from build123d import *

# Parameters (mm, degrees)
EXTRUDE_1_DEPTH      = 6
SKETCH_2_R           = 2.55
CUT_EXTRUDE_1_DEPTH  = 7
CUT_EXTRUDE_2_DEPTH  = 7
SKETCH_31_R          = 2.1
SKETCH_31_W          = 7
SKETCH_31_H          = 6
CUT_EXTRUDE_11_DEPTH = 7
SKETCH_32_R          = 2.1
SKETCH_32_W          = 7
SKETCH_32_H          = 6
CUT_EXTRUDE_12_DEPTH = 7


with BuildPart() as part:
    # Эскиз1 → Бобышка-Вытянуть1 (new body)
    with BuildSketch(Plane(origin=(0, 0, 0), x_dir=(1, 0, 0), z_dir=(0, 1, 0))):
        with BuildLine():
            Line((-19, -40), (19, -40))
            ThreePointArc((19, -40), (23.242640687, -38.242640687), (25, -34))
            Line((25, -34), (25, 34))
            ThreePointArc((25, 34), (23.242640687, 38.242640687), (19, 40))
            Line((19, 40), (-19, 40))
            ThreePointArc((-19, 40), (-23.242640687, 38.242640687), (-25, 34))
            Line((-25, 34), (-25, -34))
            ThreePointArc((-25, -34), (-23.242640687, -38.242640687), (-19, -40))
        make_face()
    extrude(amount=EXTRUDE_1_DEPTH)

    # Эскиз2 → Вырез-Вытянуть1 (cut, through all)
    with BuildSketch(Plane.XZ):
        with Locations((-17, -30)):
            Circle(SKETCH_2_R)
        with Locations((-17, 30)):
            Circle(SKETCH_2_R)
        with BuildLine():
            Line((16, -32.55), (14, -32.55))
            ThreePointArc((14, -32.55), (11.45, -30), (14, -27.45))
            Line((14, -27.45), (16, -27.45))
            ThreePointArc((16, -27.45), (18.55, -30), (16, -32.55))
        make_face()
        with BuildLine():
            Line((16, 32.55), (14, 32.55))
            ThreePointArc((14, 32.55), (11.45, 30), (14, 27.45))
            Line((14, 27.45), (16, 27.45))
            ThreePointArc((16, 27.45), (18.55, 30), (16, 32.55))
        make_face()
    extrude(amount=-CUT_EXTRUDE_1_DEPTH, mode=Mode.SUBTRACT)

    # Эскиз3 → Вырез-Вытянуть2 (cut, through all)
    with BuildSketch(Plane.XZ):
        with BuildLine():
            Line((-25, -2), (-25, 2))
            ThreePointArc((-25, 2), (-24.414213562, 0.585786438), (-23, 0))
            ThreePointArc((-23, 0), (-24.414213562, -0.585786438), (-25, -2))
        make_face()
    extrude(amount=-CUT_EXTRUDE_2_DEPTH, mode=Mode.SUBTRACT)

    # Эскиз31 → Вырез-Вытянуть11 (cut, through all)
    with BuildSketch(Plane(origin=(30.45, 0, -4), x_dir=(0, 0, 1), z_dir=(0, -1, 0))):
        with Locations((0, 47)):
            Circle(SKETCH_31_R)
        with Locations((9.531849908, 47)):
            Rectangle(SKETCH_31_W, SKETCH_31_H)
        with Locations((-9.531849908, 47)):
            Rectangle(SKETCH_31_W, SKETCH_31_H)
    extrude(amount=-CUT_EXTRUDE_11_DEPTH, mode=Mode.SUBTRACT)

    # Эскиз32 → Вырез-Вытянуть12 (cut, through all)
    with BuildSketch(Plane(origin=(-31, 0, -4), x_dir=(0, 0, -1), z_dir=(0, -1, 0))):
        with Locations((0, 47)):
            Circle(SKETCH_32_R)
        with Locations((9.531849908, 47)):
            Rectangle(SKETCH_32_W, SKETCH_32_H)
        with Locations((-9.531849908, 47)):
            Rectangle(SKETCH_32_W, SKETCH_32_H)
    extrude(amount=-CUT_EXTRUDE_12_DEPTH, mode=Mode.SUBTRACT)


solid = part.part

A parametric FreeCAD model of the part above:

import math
import FreeCAD as App
import Part
import Sketcher

doc = App.newDocument("Part")
body = doc.addObject("PartDesign::Body", "Body")

# Sketch on XZ plane
sketch1 = body.newObject("Sketcher::SketchObject", "Sketch")
sketch1.AttachmentSupport = (doc.getObject("XZ_Plane"), [""])
sketch1.MapMode = "FlatFace"
sketch1.addGeometry([
    Part.LineSegment(App.Vector(-19, 40, 0), App.Vector(19, 40, 0)),  # 0
    Part.ArcOfCircle(Part.Circle(App.Vector(19, 34, 0), App.Vector(0, 0, 1), 6), math.radians(0), math.radians(90)),  # 1
    Part.LineSegment(App.Vector(25, 34, 0), App.Vector(25, -34, 0)),  # 2
    Part.ArcOfCircle(Part.Circle(App.Vector(19, -34, 0), App.Vector(0, 0, 1), 6), math.radians(-90), math.radians(0)),  # 3
    Part.LineSegment(App.Vector(19, -40, 0), App.Vector(-19, -40, 0)),  # 4
    Part.ArcOfCircle(Part.Circle(App.Vector(-19, -34, 0), App.Vector(0, 0, 1), 6), math.radians(180), math.radians(270)),  # 5
    Part.LineSegment(App.Vector(-25, -34, 0), App.Vector(-25, 34, 0)),  # 6
    Part.ArcOfCircle(Part.Circle(App.Vector(-19, 34, 0), App.Vector(0, 0, 1), 6), math.radians(90), math.radians(180)),  # 7
], False)
sketch1.addConstraint([
    Sketcher.Constraint("Tangent", 0, 2, 1, 2),
    Sketcher.Constraint("Tangent", 1, 1, 2, 1),
    Sketcher.Constraint("Tangent", 2, 2, 3, 2),
    Sketcher.Constraint("Tangent", 3, 1, 4, 1),
    Sketcher.Constraint("Tangent", 4, 2, 5, 2),
    Sketcher.Constraint("Tangent", 5, 1, 6, 1),
    Sketcher.Constraint("Tangent", 6, 2, 7, 2),
    Sketcher.Constraint("Tangent", 7, 1, 0, 1),
    Sketcher.Constraint("Horizontal", 0),
    Sketcher.Constraint("Vertical", 2),
    Sketcher.Constraint("Horizontal", 4),
    Sketcher.Constraint("Vertical", 6),
    Sketcher.Constraint("Equal", 1, 3),
    Sketcher.Constraint("Equal", 3, 5),
    Sketcher.Constraint("Equal", 5, 7),
    Sketcher.Constraint("Symmetric", 1, 3, 5, 3, -1, 1),
    Sketcher.Constraint("Radius", 1, 6.0),
    Sketcher.Constraint("DistanceX", 0, 1, 0, 2, 38.0),
    Sketcher.Constraint("DistanceY", 2, 2, 2, 1, 68.0),
])
pad1 = body.newObject("PartDesign::Pad", "Pad")
pad1.Profile = sketch1
pad1.Length = 6
pad1.Reversed = True

# Sketch on XZ plane
sketch2 = body.newObject("Sketcher::SketchObject", "Sketch001")
sketch2.AttachmentSupport = (doc.getObject("XZ_Plane"), [""])
sketch2.MapMode = "FlatFace"
sketch2.addGeometry([
    Part.Circle(App.Vector(-17, -30, 0), App.Vector(0, 0, 1), 2.5),  # 0
    Part.Circle(App.Vector(-17, 30, 0), App.Vector(0, 0, 1), 2.5),  # 1
    Part.LineSegment(App.Vector(14, -32.5, 0), App.Vector(16, -32.5, 0)),  # 2
    Part.ArcOfCircle(Part.Circle(App.Vector(16, -30, 0), App.Vector(0, 0, 1), 2.5), math.radians(-90), math.radians(90)),  # 3
    Part.LineSegment(App.Vector(16, -27.4, 0), App.Vector(14, -27.4, 0)),  # 4
    Part.ArcOfCircle(Part.Circle(App.Vector(14, -30, 0), App.Vector(0, 0, 1), 2.5), math.radians(90), math.radians(270)),  # 5
    Part.LineSegment(App.Vector(16, 32.5, 0), App.Vector(14, 32.5, 0)),  # 6
    Part.ArcOfCircle(Part.Circle(App.Vector(14, 30, 0), App.Vector(0, 0, 1), 2.5), math.radians(90), math.radians(270)),  # 7
    Part.LineSegment(App.Vector(14, 27.4, 0), App.Vector(16, 27.4, 0)),  # 8
    Part.ArcOfCircle(Part.Circle(App.Vector(16, 30, 0), App.Vector(0, 0, 1), 2.5), math.radians(-90), math.radians(90)),  # 9
], False)
sketch2.addConstraint([
    Sketcher.Constraint("Tangent", 2, 2, 3, 1),
    Sketcher.Constraint("Tangent", 3, 2, 4, 1),
    Sketcher.Constraint("Tangent", 4, 2, 5, 1),
    Sketcher.Constraint("Tangent", 5, 2, 2, 1),
    Sketcher.Constraint("Tangent", 6, 2, 7, 1),
    Sketcher.Constraint("Tangent", 7, 2, 8, 1),
    Sketcher.Constraint("Tangent", 8, 2, 9, 1),
    Sketcher.Constraint("Tangent", 9, 2, 6, 1),
    Sketcher.Constraint("Horizontal", 2),
    Sketcher.Constraint("Horizontal", 4),
    Sketcher.Constraint("Horizontal", 6),
    Sketcher.Constraint("Horizontal", 8),
    Sketcher.Constraint("Equal", 0, 1),
    Sketcher.Constraint("Equal", 1, 3),
    Sketcher.Constraint("Equal", 5, 7),
    Sketcher.Constraint("Symmetric", 0, 3, 1, 3, -1),
    Sketcher.Constraint("Symmetric", 5, 3, 7, 3, -1),
    Sketcher.Constraint("Horizontal", 0, 3, 3, 3),
    Sketcher.Constraint("Vertical", 3, 3, 9, 3),
    Sketcher.Constraint("Diameter", 0, 5.1),
    Sketcher.Constraint("DistanceX", 2, 1, 2, 2, 2.0),
    Sketcher.Constraint("DistanceX", 0, 3, -1, 1, 17.0),
    Sketcher.Constraint("DistanceY", 0, 3, -1, 1, 30.0),
    Sketcher.Constraint("DistanceX", -1, 1, 3, 3, 16.0),
])
pocket1 = body.newObject("PartDesign::Pocket", "Pocket")
pocket1.Profile = sketch2
pocket1.Type = "ThroughAll"

# Sketch on XZ plane
sketch3 = body.newObject("Sketcher::SketchObject", "Sketch002")
sketch3.AttachmentSupport = (doc.getObject("XZ_Plane"), [""])
sketch3.MapMode = "FlatFace"
sketch3.addGeometry([
    Part.LineSegment(App.Vector(-25, 2, 0), App.Vector(-25, -2, 0)),
    Part.ArcOfCircle(Part.Circle(App.Vector(-23, -2, 0), App.Vector(0, 0, 1), 2), math.radians(90), math.radians(180)),
    Part.ArcOfCircle(Part.Circle(App.Vector(-23, 2, 0), App.Vector(0, 0, 1), 2), math.radians(-180), math.radians(-90)),
], False)
sketch3.addConstraint([
    Sketcher.Constraint("Tangent", 0, 2, 1, 2),
    Sketcher.Constraint("Tangent", 1, 1, 2, 2),
    Sketcher.Constraint("Tangent", 2, 1, 0, 1),
    Sketcher.Constraint("Vertical", 0),
    Sketcher.Constraint("Equal", 1, 2),
    Sketcher.Constraint("PointOnObject", 1, 1, -1),
    Sketcher.Constraint("Radius", 1, 2.0),
    Sketcher.Constraint("DistanceX", 1, 3, -1, 1, 23.0),
])
pocket2 = body.newObject("PartDesign::Pocket", "Pocket001")
pocket2.Profile = sketch3
pocket2.Type = "ThroughAll"

# Sketch on XZ plane
sketch4 = body.newObject("Sketcher::SketchObject", "Sketch003")
sketch4.AttachmentSupport = (doc.getObject("XZ_Plane"), [""])
sketch4.MapMode = "FlatFace"
sketch4.addGeometry([
    Part.Circle(App.Vector(-16.6, -4, 0), App.Vector(0, 0, 1), 2.1),  # 0
    Part.LineSegment(App.Vector(-19.6, 2, 0), App.Vector(-13.6, 2, 0)),  # 1
    Part.LineSegment(App.Vector(-13.6, 2, 0), App.Vector(-13.6, 9, 0)),  # 2
    Part.LineSegment(App.Vector(-13.6, 9, 0), App.Vector(-19.6, 9, 0)),  # 3
    Part.LineSegment(App.Vector(-19.6, 9, 0), App.Vector(-19.6, 2, 0)),  # 4
    Part.LineSegment(App.Vector(-19.6, -17, 0), App.Vector(-13.6, -17, 0)),  # 5
    Part.LineSegment(App.Vector(-13.6, -17, 0), App.Vector(-13.6, -10, 0)),  # 6
    Part.LineSegment(App.Vector(-13.6, -10, 0), App.Vector(-19.6, -10, 0)),  # 7
    Part.LineSegment(App.Vector(-19.6, -10, 0), App.Vector(-19.6, -17, 0)),  # 8
], False)
sketch4.addConstraint([
    Sketcher.Constraint("Coincident", 1, 2, 2, 1),
    Sketcher.Constraint("Coincident", 2, 2, 3, 1),
    Sketcher.Constraint("Coincident", 3, 2, 4, 1),
    Sketcher.Constraint("Coincident", 4, 2, 1, 1),
    Sketcher.Constraint("Coincident", 5, 2, 6, 1),
    Sketcher.Constraint("Coincident", 6, 2, 7, 1),
    Sketcher.Constraint("Coincident", 7, 2, 8, 1),
    Sketcher.Constraint("Coincident", 8, 2, 5, 1),
    Sketcher.Constraint("Horizontal", 1),
    Sketcher.Constraint("Vertical", 2),
    Sketcher.Constraint("Horizontal", 3),
    Sketcher.Constraint("Vertical", 4),
    Sketcher.Constraint("Horizontal", 5),
    Sketcher.Constraint("Vertical", 6),
    Sketcher.Constraint("Horizontal", 7),
    Sketcher.Constraint("Vertical", 8),
    Sketcher.Constraint("Vertical", 2, 2, 5, 2),
    Sketcher.Constraint("Vertical", 4, 2, 7, 2),
    Sketcher.Constraint("Equal", 4, 6),
    Sketcher.Constraint("Diameter", 0, 4.2),
    Sketcher.Constraint("DistanceX", 1, 1, 1, 2, 6.0),
    Sketcher.Constraint("DistanceY", 2, 1, 2, 2, 7.0),
    Sketcher.Constraint("DistanceY", 0, 3, -1, 1, 4.0),
    Sketcher.Constraint("DistanceX", 0, 3, 1, 2, 3.0),
    Sketcher.Constraint("DistanceX", 0, 3, -1, 1, 16.55),
    Sketcher.Constraint("DistanceY", 5, 2, 1, 2, 19.0637),
    Sketcher.Constraint("DistanceY", -1, 1, 1, 2, 2.03185),
])
pocket3 = body.newObject("PartDesign::Pocket", "Pocket002")
pocket3.Profile = sketch4
pocket3.Type = "ThroughAll"

# Sketch on XZ plane
sketch5 = body.newObject("Sketcher::SketchObject", "Sketch004")
sketch5.AttachmentSupport = (doc.getObject("XZ_Plane"), [""])
sketch5.MapMode = "FlatFace"
sketch5.addGeometry([
    Part.Circle(App.Vector(16, -4, 0), App.Vector(0, 0, 1), 2.1),  # 0
    Part.LineSegment(App.Vector(19, -10, 0), App.Vector(13, -10, 0)),  # 1
    Part.LineSegment(App.Vector(13, -10, 0), App.Vector(13, -17, 0)),  # 2
    Part.LineSegment(App.Vector(13, -17, 0), App.Vector(19, -17, 0)),  # 3
    Part.LineSegment(App.Vector(19, -17, 0), App.Vector(19, -10, 0)),  # 4
    Part.LineSegment(App.Vector(19, 9, 0), App.Vector(13, 9, 0)),  # 5
    Part.LineSegment(App.Vector(13, 9, 0), App.Vector(13, 2, 0)),  # 6
    Part.LineSegment(App.Vector(13, 2, 0), App.Vector(19, 2, 0)),  # 7
    Part.LineSegment(App.Vector(19, 2, 0), App.Vector(19, 9, 0)),  # 8
], False)
sketch5.addConstraint([
    Sketcher.Constraint("Coincident", 1, 2, 2, 1),
    Sketcher.Constraint("Coincident", 2, 2, 3, 1),
    Sketcher.Constraint("Coincident", 3, 2, 4, 1),
    Sketcher.Constraint("Coincident", 4, 2, 1, 1),
    Sketcher.Constraint("Coincident", 5, 2, 6, 1),
    Sketcher.Constraint("Coincident", 6, 2, 7, 1),
    Sketcher.Constraint("Coincident", 7, 2, 8, 1),
    Sketcher.Constraint("Coincident", 8, 2, 5, 1),
    Sketcher.Constraint("Horizontal", 1),
    Sketcher.Constraint("Vertical", 2),
    Sketcher.Constraint("Horizontal", 3),
    Sketcher.Constraint("Vertical", 4),
    Sketcher.Constraint("Horizontal", 5),
    Sketcher.Constraint("Vertical", 6),
    Sketcher.Constraint("Horizontal", 7),
    Sketcher.Constraint("Vertical", 8),
    Sketcher.Constraint("Vertical", 2, 2, 5, 2),
    Sketcher.Constraint("Vertical", 4, 2, 7, 2),
    Sketcher.Constraint("Equal", 4, 6),
    Sketcher.Constraint("Diameter", 0, 4.2),
    Sketcher.Constraint("DistanceX", 1, 2, 1, 1, 6.0),
    Sketcher.Constraint("DistanceY", 2, 2, 2, 1, 7.0),
    Sketcher.Constraint("DistanceX", -1, 1, 0, 3, 16.0),
    Sketcher.Constraint("DistanceY", 0, 3, -1, 1, 4.0),
    Sketcher.Constraint("DistanceX", -1, 1, 1, 2, 13.0),
    Sketcher.Constraint("DistanceY", 1, 2, 5, 2, 19.0637),
    Sketcher.Constraint("DistanceY", 1, 2, -1, 1, 10.03185),
])
pocket4 = body.newObject("PartDesign::Pocket", "Pocket003")
pocket4.Profile = sketch5
pocket4.Type = "ThroughAll"

doc.recompute()
